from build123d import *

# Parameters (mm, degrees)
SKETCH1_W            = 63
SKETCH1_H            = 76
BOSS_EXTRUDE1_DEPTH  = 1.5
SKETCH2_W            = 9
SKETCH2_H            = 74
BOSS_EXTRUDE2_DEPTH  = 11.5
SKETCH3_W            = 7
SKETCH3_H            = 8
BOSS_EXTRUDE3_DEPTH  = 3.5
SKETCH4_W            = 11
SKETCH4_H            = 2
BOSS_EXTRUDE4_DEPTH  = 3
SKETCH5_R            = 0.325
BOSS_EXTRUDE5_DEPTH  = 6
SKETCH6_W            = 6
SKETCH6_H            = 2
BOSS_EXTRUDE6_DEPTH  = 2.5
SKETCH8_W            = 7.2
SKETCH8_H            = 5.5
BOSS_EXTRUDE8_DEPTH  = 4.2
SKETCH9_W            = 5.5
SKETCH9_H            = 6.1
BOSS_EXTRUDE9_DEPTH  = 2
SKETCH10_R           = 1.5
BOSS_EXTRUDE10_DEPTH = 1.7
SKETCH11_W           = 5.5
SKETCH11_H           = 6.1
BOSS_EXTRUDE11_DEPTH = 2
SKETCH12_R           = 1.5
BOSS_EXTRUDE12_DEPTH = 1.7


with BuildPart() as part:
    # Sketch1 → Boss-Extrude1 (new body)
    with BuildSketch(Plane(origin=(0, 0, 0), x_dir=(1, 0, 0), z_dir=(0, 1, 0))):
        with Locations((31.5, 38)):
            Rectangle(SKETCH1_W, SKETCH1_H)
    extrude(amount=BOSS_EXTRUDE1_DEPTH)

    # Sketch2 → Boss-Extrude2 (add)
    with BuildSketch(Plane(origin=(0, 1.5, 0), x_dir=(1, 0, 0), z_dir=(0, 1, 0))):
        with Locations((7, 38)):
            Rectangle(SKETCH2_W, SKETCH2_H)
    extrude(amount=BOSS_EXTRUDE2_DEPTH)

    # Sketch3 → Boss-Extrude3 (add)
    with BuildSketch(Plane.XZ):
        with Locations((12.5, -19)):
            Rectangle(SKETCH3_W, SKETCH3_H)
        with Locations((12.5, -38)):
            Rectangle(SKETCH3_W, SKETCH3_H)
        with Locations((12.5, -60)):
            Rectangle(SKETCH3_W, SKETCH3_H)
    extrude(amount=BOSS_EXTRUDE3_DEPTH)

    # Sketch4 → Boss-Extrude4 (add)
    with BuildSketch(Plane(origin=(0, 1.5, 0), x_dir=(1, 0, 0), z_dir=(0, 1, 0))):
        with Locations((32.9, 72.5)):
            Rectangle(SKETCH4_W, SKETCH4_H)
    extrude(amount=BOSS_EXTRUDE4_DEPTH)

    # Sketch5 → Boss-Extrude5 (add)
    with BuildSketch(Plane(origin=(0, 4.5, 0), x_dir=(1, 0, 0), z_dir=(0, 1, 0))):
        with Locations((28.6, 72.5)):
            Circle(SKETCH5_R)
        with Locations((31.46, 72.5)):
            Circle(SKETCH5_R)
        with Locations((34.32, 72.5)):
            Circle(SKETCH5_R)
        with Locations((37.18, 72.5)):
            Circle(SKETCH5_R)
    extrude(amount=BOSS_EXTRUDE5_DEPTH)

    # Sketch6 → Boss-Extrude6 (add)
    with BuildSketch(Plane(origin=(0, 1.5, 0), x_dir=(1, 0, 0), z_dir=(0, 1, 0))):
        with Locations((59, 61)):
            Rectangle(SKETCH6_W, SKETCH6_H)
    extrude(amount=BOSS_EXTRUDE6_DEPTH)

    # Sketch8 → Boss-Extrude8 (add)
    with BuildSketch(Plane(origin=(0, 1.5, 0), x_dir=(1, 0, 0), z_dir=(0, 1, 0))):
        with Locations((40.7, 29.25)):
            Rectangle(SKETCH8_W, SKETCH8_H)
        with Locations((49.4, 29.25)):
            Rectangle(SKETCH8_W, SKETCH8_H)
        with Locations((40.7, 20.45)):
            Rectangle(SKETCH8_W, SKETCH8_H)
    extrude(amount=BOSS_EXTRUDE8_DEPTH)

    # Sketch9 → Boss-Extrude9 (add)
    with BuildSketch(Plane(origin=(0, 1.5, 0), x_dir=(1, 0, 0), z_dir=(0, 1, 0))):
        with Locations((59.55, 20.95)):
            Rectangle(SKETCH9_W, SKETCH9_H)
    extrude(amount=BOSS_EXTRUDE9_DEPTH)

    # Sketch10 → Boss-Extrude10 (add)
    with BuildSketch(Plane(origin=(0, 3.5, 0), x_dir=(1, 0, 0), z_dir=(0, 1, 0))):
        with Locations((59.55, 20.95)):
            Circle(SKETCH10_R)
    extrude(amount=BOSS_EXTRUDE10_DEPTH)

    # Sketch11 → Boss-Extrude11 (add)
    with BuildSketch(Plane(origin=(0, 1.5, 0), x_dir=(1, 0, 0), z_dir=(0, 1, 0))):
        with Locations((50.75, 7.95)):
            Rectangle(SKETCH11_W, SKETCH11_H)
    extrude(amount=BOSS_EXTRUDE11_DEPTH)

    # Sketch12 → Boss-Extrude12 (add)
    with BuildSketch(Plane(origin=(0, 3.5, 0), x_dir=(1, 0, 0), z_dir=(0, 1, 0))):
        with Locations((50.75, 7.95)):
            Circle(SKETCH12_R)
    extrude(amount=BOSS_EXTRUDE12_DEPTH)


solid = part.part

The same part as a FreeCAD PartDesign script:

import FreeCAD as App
import Part
import Sketcher
from FreeCAD import Vector
Q = App.Units.Quantity

doc = App.newDocument("Part")
params = doc.addObject("Spreadsheet::Sheet", "Params")
for row, (alias, value) in enumerate([
    ("sketch1_width", "63 mm"),
    ("sketch1_height", "76 mm"),
    ("pad1_length", "1.5 mm"),
    ("sketch2_width", "9 mm"),
    ("sketch2_height", "74 mm"),
    ("pad2_length", "11.5 mm"),
    ("sketch3_width", "7 mm"),
    ("sketch3_height", "8 mm"),
    ("pad3_length", "3.5 mm"),
    ("sketch4_width", "11 mm"),
    ("sketch4_height", "2 mm"),
    ("pad4_length", "3 mm"),
    ("sketch5_diameter", "0.65 mm"),
    ("pad5_length", "6 mm"),
    ("sketch6_width", "6 mm"),
    ("sketch6_height", "2 mm"),
    ("pad6_length", "2.5 mm"),
    ("sketch7_width", "7.2 mm"),
    ("sketch7_height", "5.5 mm"),
    ("pad7_length", "4.2 mm"),
    ("sketch8_width", "5.5 mm"),
    ("sketch8_height", "6.1 mm"),
    ("pad8_length", "2 mm"),
    ("sketch9_diameter", "3 mm"),
    ("pad9_length", "1.7 mm"),
    ("sketch10_width", "5.5 mm"),
    ("sketch10_height", "6.1 mm"),
    ("pad10_length", "2 mm"),
    ("sketch11_diameter", "3 mm"),
    ("pad11_length", "1.7 mm"),
], start=1):
    params.set(f"A{row}", alias)
    params.set(f"B{row}", "=" + value)
    params.setAlias(f"B{row}", alias)

body = doc.addObject("PartDesign::Body", "Body")

sketch1 = body.newObject("Sketcher::SketchObject", "Sketch")
sketch1.AttachmentSupport = (doc.getObject("XZ_Plane"), [""])
sketch1.MapMode = "FlatFace"
sketch1.addGeometry(Part.LineSegment(Vector(0, -76, 0), Vector(0, 0, 0)), False)
sketch1.addGeometry(Part.LineSegment(Vector(0, 0, 0), Vector(63, 0, 0)), False)
sketch1.addGeometry(Part.LineSegment(Vector(63, 0, 0), Vector(63, -76, 0)), False)
sketch1.addGeometry(Part.LineSegment(Vector(63, -76, 0), Vector(0, -76, 0)), False)
sketch1.addConstraint(Sketcher.Constraint("Coincident", 0, 2, 1, 1))
sketch1.addConstraint(Sketcher.Constraint("Coincident", 1, 2, 2, 1))
sketch1.addConstraint(Sketcher.Constraint("Coincident", 2, 2, 3, 1))
sketch1.addConstraint(Sketcher.Constraint("Coincident", 3, 2, 0, 1))
sketch1.addConstraint(Sketcher.Constraint("Vertical", 0))
sketch1.addConstraint(Sketcher.Constraint("Horizontal", 1))
sketch1.addConstraint(Sketcher.Constraint("Vertical", 2))
sketch1.addConstraint(Sketcher.Constraint("Horizontal", 3))
sketch1.addConstraint(Sketcher.Constraint("Coincident", 0, 2, -1, 1))
sketch1.addConstraint(Sketcher.Constraint("DistanceX", 1, 1, 1, 2, Q("63 mm")))
sketch1.addConstraint(Sketcher.Constraint("DistanceY", 0, 1, 0, 2, Q("76 mm")))
sketch1.setExpression("Constraints[9]", "Params.sketch1_width")
sketch1.setExpression("Constraints[10]", "Params.sketch1_height")
pad1 = body.newObject("PartDesign::Pad", "Pad")
pad1.Profile = sketch1
pad1.setExpression("Length", "Params.pad1_length")
pad1.Reversed = True

sketch2 = body.newObject("Sketcher::SketchObject", "Sketch001")
sketch2.AttachmentSupport = (doc.getObject("XZ_Plane"), [""])
sketch2.MapMode = "FlatFace"
sketch2.AttachmentOffset = App.Placement(Vector(0, 0, -1.5), App.Rotation())
sketch2.addGeometry(Part.LineSegment(Vector(2, -75, 0), Vector(2, -1, 0)), False)
sketch2.addGeometry(Part.LineSegment(Vector(2, -1, 0), Vector(12, -1, 0)), False)
sketch2.addGeometry(Part.LineSegment(Vector(12, -1, 0), Vector(12, -75, 0)), False)
sketch2.addGeometry(Part.LineSegment(Vector(12, -75, 0), Vector(2, -75, 0)), False)
sketch2.addConstraint(Sketcher.Constraint("Coincident", 0, 2, 1, 1))
sketch2.addConstraint(Sketcher.Constraint("Coincident", 1, 2, 2, 1))
sketch2.addConstraint(Sketcher.Constraint("Coincident", 2, 2, 3, 1))
sketch2.addConstraint(Sketcher.Constraint("Coincident", 3, 2, 0, 1))
sketch2.addConstraint(Sketcher.Constraint("Vertical", 0))
sketch2.addConstraint(Sketcher.Constraint("Horizontal", 1))
sketch2.addConstraint(Sketcher.Constraint("Vertical", 2))
sketch2.addConstraint(Sketcher.Constraint("Horizontal", 3))
sketch2.addConstraint(Sketcher.Constraint("DistanceX", 1, 1, 1, 2, Q("9 mm")))
sketch2.addConstraint(Sketcher.Constraint("DistanceY", 0, 1, 0, 2, Q("74 mm")))
sketch2.addConstraint(Sketcher.Constraint("DistanceY", 0, 2, -1, 1, Q("1 mm")))
sketch2.addConstraint(Sketcher.Constraint("DistanceX", -1, 1, 0, 2, Q("2.5 mm")))
sketch2.setExpression("Constraints[8]", "Params.sketch2_width")
sketch2.setExpression("Constraints[9]", "Params.sketch2_height")
pad2 = body.newObject("PartDesign::Pad", "Pad001")
pad2.Profile = sketch2
pad2.setExpression("Length", "Params.pad2_length")
pad2.Reversed = True

sketch3 = body.newObject("Sketcher::SketchObject", "Sketch002")
sketch3.AttachmentSupport = (doc.getObject("XZ_Plane"), [""])
sketch3.MapMode = "FlatFace"
sketch3.addGeometry(Part.LineSegment(Vector(9, -15, 0), Vector(9, -23, 0)), False)
sketch3.addGeometry(Part.LineSegment(Vector(9, -23, 0), Vector(16, -23, 0)), False)
sketch3.addGeometry(Part.LineSegment(Vector(16, -23, 0), Vector(16, -15, 0)), False)
sketch3.addGeometry(Part.LineSegment(Vector(16, -15, 0), Vector(9, -15, 0)), False)
sketch3.addGeometry(Part.LineSegment(Vector(9, -34, 0), Vector(9, -42, 0)), False)
sketch3.addGeometry(Part.LineSegment(Vector(9, -42, 0), Vector(16, -42, 0)), False)
sketch3.addGeometry(Part.LineSegment(Vector(16, -42, 0), Vector(16, -34, 0)), False)
sketch3.addGeometry(Part.LineSegment(Vector(16, -34, 0), Vector(9, -34, 0)), False)
sketch3.addGeometry(Part.LineSegment(Vector(9, -56, 0), Vector(9, -64, 0)), False)
sketch3.addGeometry(Part.LineSegment(Vector(9, -64, 0), Vector(16, -64, 0)), False)
sketch3.addGeometry(Part.LineSegment(Vector(16, -64, 0), Vector(16, -56, 0)), False)
sketch3.addGeometry(Part.LineSegment(Vector(16, -56, 0), Vector(9, -56, 0)), False)
sketch3.addConstraint(Sketcher.Constraint("Coincident", 0, 2, 1, 1))
sketch3.addConstraint(Sketcher.Constraint("Coincident", 1, 2, 2, 1))
sketch3.addConstraint(Sketcher.Constraint("Coincident", 2, 2, 3, 1))
sketch3.addConstraint(Sketcher.Constraint("Coincident", 3, 2, 0, 1))
sketch3.addConstraint(Sketcher.Constraint("Coincident", 4, 2, 5, 1))
sketch3.addConstraint(Sketcher.Constraint("Coincident", 5, 2, 6, 1))
sketch3.addConstraint(Sketcher.Constraint("Coincident", 6, 2, 7, 1))
sketch3.addConstraint(Sketcher.Constraint("Coincident", 7, 2, 4, 1))
sketch3.addConstraint(Sketcher.Constraint("Coincident", 8, 2, 9, 1))
sketch3.addConstraint(Sketcher.Constraint("Coincident", 9, 2, 10, 1))
sketch3.addConstraint(Sketcher.Constraint("Coincident", 10, 2, 11, 1))
sketch3.addConstraint(Sketcher.Constraint("Coincident", 11, 2, 8, 1))
sketch3.addConstraint(Sketcher.Constraint("Vertical", 0))
sketch3.addConstraint(Sketcher.Constraint("Horizontal", 1))
sketch3.addConstraint(Sketcher.Constraint("Vertical", 2))
sketch3.addConstraint(Sketcher.Constraint("Horizontal", 3))
sketch3.addConstraint(Sketcher.Constraint("Vertical", 4))
sketch3.addConstraint(Sketcher.Constraint("Horizontal", 5))
sketch3.addConstraint(Sketcher.Constraint("Vertical", 6))
sketch3.addConstraint(Sketcher.Constraint("Horizontal", 7))
sketch3.addConstraint(Sketcher.Constraint("Vertical", 8))
sketch3.addConstraint(Sketcher.Constraint("Horizontal", 9))
sketch3.addConstraint(Sketcher.Constraint("Vertical", 10))
sketch3.addConstraint(Sketcher.Constraint("Horizontal", 11))
sketch3.addConstraint(Sketcher.Constraint("Vertical", 3, 2, 4, 2))
sketch3.addConstraint(Sketcher.Constraint("Vertical", 2, 2, 5, 2))
sketch3.addConstraint(Sketcher.Constraint("Vertical", 7, 2, 8, 2))
sketch3.addConstraint(Sketcher.Constraint("Vertical", 6, 2, 9, 2))
sketch3.addConstraint(Sketcher.Constraint("Equal", 2, 4))
sketch3.addConstraint(Sketcher.Constraint("Equal", 6, 8))
sketch3.addConstraint(Sketcher.Constraint("DistanceX", 1, 1, 1, 2, Q("7 mm")))
sketch3.addConstraint(Sketcher.Constraint("DistanceY", 0, 2, 0, 1, Q("8 mm")))
sketch3.addConstraint(Sketcher.Constraint("DistanceX", -1, 1, 0, 2, Q("9 mm")))
sketch3.addConstraint(Sketcher.Constraint("DistanceY", 0, 2, -1, 1, Q("23 mm")))
sketch3.addConstraint(Sketcher.Constraint("DistanceY", 4, 2, -1, 1, Q("42 mm")))
sketch3.addConstraint(Sketcher.Constraint("DistanceY", 8, 2, -1, 1, Q("64 mm")))
sketch3.setExpression("Constraints[30]", "Params.sketch3_width")
sketch3.setExpression("Constraints[31]", "Params.sketch3_height")
pad3 = body.newObject("PartDesign::Pad", "Pad002")
pad3.Profile = sketch3
pad3.setExpression("Length", "Params.pad3_length")

sketch4 = body.newObject("Sketcher::SketchObject", "Sketch003")
sketch4.AttachmentSupport = (doc.getObject("XZ_Plane"), [""])
sketch4.MapMode = "FlatFace"
sketch4.AttachmentOffset = App.Placement(Vector(0, 0, -1.5), App.Rotation())
sketch4.addGeometry(Part.LineSegment(Vector(27.4, -73.5, 0), Vector(27.4, -71.5, 0)), False)
sketch4.addGeometry(Part.LineSegment(Vector(27.4, -71.5, 0), Vector(38.4, -71.5, 0)), False)
sketch4.addGeometry(Part.LineSegment(Vector(38.4, -71.5, 0), Vector(38.4, -73.5, 0)), False)
sketch4.addGeometry(Part.LineSegment(Vector(38.4, -73.5, 0), Vector(27.4, -73.5, 0)), False)
sketch4.addConstraint(Sketcher.Constraint("Coincident", 0, 2, 1, 1))
sketch4.addConstraint(Sketcher.Constraint("Coincident", 1, 2, 2, 1))
sketch4.addConstraint(Sketcher.Constraint("Coincident", 2, 2, 3, 1))
sketch4.addConstraint(Sketcher.Constraint("Coincident", 3, 2, 0, 1))
sketch4.addConstraint(Sketcher.Constraint("Vertical", 0))
sketch4.addConstraint(Sketcher.Constraint("Horizontal", 1))
sketch4.addConstraint(Sketcher.Constraint("Vertical", 2))
sketch4.addConstraint(Sketcher.Constraint("Horizontal", 3))
sketch4.addConstraint(Sketcher.Constraint("DistanceX", 1, 1, 1, 2, Q("11 mm")))
sketch4.addConstraint(Sketcher.Constraint("DistanceY", 0, 1, 0, 2, Q("2 mm")))
sketch4.addConstraint(Sketcher.Constraint("DistanceX", -1, 1, 0, 2, Q("27.4 mm")))
sketch4.addConstraint(Sketcher.Constraint("DistanceY", 0, 2, -1, 1, Q("71.5 mm")))
sketch4.setExpression("Constraints[8]", "Params.sketch4_width")
sketch4.setExpression("Constraints[9]", "Params.sketch4_height")
pad4 = body.newObject("PartDesign::Pad", "Pad003")
pad4.Profile = sketch4
pad4.setExpression("Length", "Params.pad4_length")
pad4.Reversed = True

sketch5 = body.newObject("Sketcher::SketchObject", "Sketch004")
sketch5.AttachmentSupport = (doc.getObject("XZ_Plane"), [""])
sketch5.MapMode = "FlatFace"
sketch5.AttachmentOffset = App.Placement(Vector(0, 0, -4.5), App.Rotation())
sketch5.addGeometry(Part.Circle(Vector(28.6, -72.5, 0), Vector(0, 0, 1), 0.33), False)
sketch5.addGeometry(Part.Circle(Vector(31.46, -72.5, 0), Vector(0, 0, 1), 0.33), False)
sketch5.addGeometry(Part.Circle(Vector(34.32, -72.5, 0), Vector(0, 0, 1), 0.33), False)
sketch5.addGeometry(Part.Circle(Vector(37.18, -72.5, 0), Vector(0, 0, 1), 0.33), False)
sketch5.addConstraint(Sketcher.Constraint("Equal", 0, 1))
sketch5.addConstraint(Sketcher.Constraint("Equal", 1, 2))
sketch5.addConstraint(Sketcher.Constraint("Equal", 2, 3))
sketch5.addConstraint(Sketcher.Constraint("Horizontal", 0, 3, 1, 3))
sketch5.addConstraint(Sketcher.Constraint("Horizontal", 1, 3, 2, 3))
sketch5.addConstraint(Sketcher.Constraint("Horizontal", 2, 3, 3, 3))
sketch5.addConstraint(Sketcher.Constraint("Diameter", 0, Q("0.65 mm")))
sketch5.addConstraint(Sketcher.Constraint("DistanceX", -1, 1, 0, 3, Q("28.6 mm")))
sketch5.addConstraint(Sketcher.Constraint("DistanceY", 0, 3, -1, 1, Q("72.5 mm")))
sketch5.addConstraint(Sketcher.Constraint("DistanceX", -1, 1, 1, 3, Q("31.46 mm")))
sketch5.addConstraint(Sketcher.Constraint("DistanceX", -1, 1, 2, 3, Q("34.32 mm")))
sketch5.addConstraint(Sketcher.Constraint("DistanceX", -1, 1, 3, 3, Q("37.18 mm")))
sketch5.setExpression("Constraints[6]", "Params.sketch5_diameter")
pad5 = body.newObject("PartDesign::Pad", "Pad004")
pad5.Profile = sketch5
pad5.setExpression("Length", "Params.pad5_length")
pad5.Reversed = True

sketch6 = body.newObject("Sketcher::SketchObject", "Sketch005")
sketch6.AttachmentSupport = (doc.getObject("XZ_Plane"), [""])
sketch6.MapMode = "FlatFace"
sketch6.AttachmentOffset = App.Placement(Vector(0, 0, -1.5), App.Rotation())
sketch6.addGeometry(Part.LineSegment(Vector(56, -62, 0), Vector(56, -60, 0)), False)
sketch6.addGeometry(Part.LineSegment(Vector(56, -60, 0), Vector(62, -60, 0)), False)
sketch6.addGeometry(Part.LineSegment(Vector(62, -60, 0), Vector(62, -62, 0)), False)
sketch6.addGeometry(Part.LineSegment(Vector(62, -62, 0), Vector(56, -62, 0)), False)
sketch6.addConstraint(Sketcher.Constraint("Coincident", 0, 2, 1, 1))
sketch6.addConstraint(Sketcher.Constraint("Coincident", 1, 2, 2, 1))
sketch6.addConstraint(Sketcher.Constraint("Coincident", 2, 2, 3, 1))
sketch6.addConstraint(Sketcher.Constraint("Coincident", 3, 2, 0, 1))
sketch6.addConstraint(Sketcher.Constraint("Vertical", 0))
sketch6.addConstraint(Sketcher.Constraint("Horizontal", 1))
sketch6.addConstraint(Sketcher.Constraint("Vertical", 2))
sketch6.addConstraint(Sketcher.Constraint("Horizontal", 3))
sketch6.addConstraint(Sketcher.Constraint("DistanceX", 1, 1, 1, 2, Q("6 mm")))
sketch6.addConstraint(Sketcher.Constraint("DistanceY", 0, 1, 0, 2, Q("2 mm")))
sketch6.addConstraint(Sketcher.Constraint("DistanceX", -1, 1, 0, 2, Q("56 mm")))
sketch6.addConstraint(Sketcher.Constraint("DistanceY", 0, 2, -1, 1, Q("60 mm")))
sketch6.setExpression("Constraints[8]", "Params.sketch6_width")
sketch6.setExpression("Constraints[9]", "Params.sketch6_height")
pad6 = body.newObject("PartDesign::Pad", "Pad005")
pad6.Profile = sketch6
pad6.setExpression("Length", "Params.pad6_length")
pad6.Reversed = True

sketch7 = body.newObject("Sketcher::SketchObject", "Sketch006")
sketch7.AttachmentSupport = (doc.getObject("XZ_Plane"), [""])
sketch7.MapMode = "FlatFace"
sketch7.AttachmentOffset = App.Placement(Vector(0, 0, -1.5), App.Rotation())
sketch7.addGeometry(Part.LineSegment(Vector(37, -32, 0), Vector(37, -26, 0)), False)
sketch7.addGeometry(Part.LineSegment(Vector(37, -26, 0), Vector(44, -26, 0)), False)
sketch7.addGeometry(Part.LineSegment(Vector(44, -26, 0), Vector(44, -32, 0)), False)
sketch7.addGeometry(Part.LineSegment(Vector(44, -32, 0), Vector(37, -32, 0)), False)
sketch7.addGeometry(Part.LineSegment(Vector(46, -32, 0), Vector(46, -26, 0)), False)
sketch7.addGeometry(Part.LineSegment(Vector(46, -26, 0), Vector(53, -26, 0)), False)
sketch7.addGeometry(Part.LineSegment(Vector(53, -26, 0), Vector(53, -32, 0)), False)
sketch7.addGeometry(Part.LineSegment(Vector(53, -32, 0), Vector(46, -32, 0)), False)
sketch7.addGeometry(Part.LineSegment(Vector(37, -23, 0), Vector(37, -18, 0)), False)
sketch7.addGeometry(Part.LineSegment(Vector(37, -18, 0), Vector(44, -18, 0)), False)
sketch7.addGeometry(Part.LineSegment(Vector(44, -18, 0), Vector(44, -23, 0)), False)
sketch7.addGeometry(Part.LineSegment(Vector(44, -23, 0), Vector(37, -23, 0)), False)
sketch7.addConstraint(Sketcher.Constraint("Coincident", 0, 2, 1, 1))
sketch7.addConstraint(Sketcher.Constraint("Coincident", 1, 2, 2, 1))
sketch7.addConstraint(Sketcher.Constraint("Coincident", 2, 2, 3, 1))
sketch7.addConstraint(Sketcher.Constraint("Coincident", 3, 2, 0, 1))
sketch7.addConstraint(Sketcher.Constraint("Coincident", 4, 2, 5, 1))
sketch7.addConstraint(Sketcher.Constraint("Coincident", 5, 2, 6, 1))
sketch7.addConstraint(Sketcher.Constraint("Coincident", 6, 2, 7, 1))
sketch7.addConstraint(Sketcher.Constraint("Coincident", 7, 2, 4, 1))
sketch7.addConstraint(Sketcher.Constraint("Coincident", 8, 2, 9, 1))
sketch7.addConstraint(Sketcher.Constraint("Coincident", 9, 2, 10, 1))
sketch7.addConstraint(Sketcher.Constraint("Coincident", 10, 2, 11, 1))
sketch7.addConstraint(Sketcher.Constraint("Coincident", 11, 2, 8, 1))
sketch7.addConstraint(Sketcher.Constraint("Vertical", 0))
sketch7.addConstraint(Sketcher.Constraint("Horizontal", 1))
sketch7.addConstraint(Sketcher.Constraint("Vertical", 2))
sketch7.addConstraint(Sketcher.Constraint("Horizontal", 3))
sketch7.addConstraint(Sketcher.Constraint("Vertical", 4))
sketch7.addConstraint(Sketcher.Constraint("Horizontal", 5))
sketch7.addConstraint(Sketcher.Constraint("Vertical", 6))
sketch7.addConstraint(Sketcher.Constraint("Horizontal", 7))
sketch7.addConstraint(Sketcher.Constraint("Vertical", 8))
sketch7.addConstraint(Sketcher.Constraint("Horizontal", 9))
sketch7.addConstraint(Sketcher.Constraint("Vertical", 10))
sketch7.addConstraint(Sketcher.Constraint("Horizontal", 11))
sketch7.addConstraint(Sketcher.Constraint("Horizontal", 1, 2, 4, 2))
sketch7.addConstraint(Sketcher.Constraint("Horizontal", 3, 2, 6, 2))
sketch7.addConstraint(Sketcher.Constraint("Vertical", 3, 2, 8, 2))
sketch7.addConstraint(Sketcher.Constraint("Vertical", 2, 2, 9, 2))
sketch7.addConstraint(Sketcher.Constraint("Equal", 3, 5))
sketch7.addConstraint(Sketcher.Constraint("Equal", 6, 8))
sketch7.addConstraint(Sketcher.Constraint("DistanceX", 1, 1, 1, 2, Q("7.2 mm")))
sketch7.addConstraint(Sketcher.Constraint("DistanceY", 0, 1, 0, 2, Q("5.5 mm")))
sketch7.addConstraint(Sketcher.Constraint("DistanceY", 2, 2, -1, 1, Q("32 mm")))
sketch7.addConstraint(Sketcher.Constraint("DistanceX", -1, 1, 5, 2, Q("53 mm")))
sketch7.addConstraint(Sketcher.Constraint("DistanceX", -1, 1, 0, 2, Q("37.1 mm")))
sketch7.addConstraint(Sketcher.Constraint("DistanceY", 8, 2, -1, 1, Q("17.7 mm")))
sketch7.setExpression("Constraints[30]", "Params.sketch7_width")
sketch7.setExpression("Constraints[31]", "Params.sketch7_height")
pad7 = body.newObject("PartDesign::Pad", "Pad006")
pad7.Profile = sketch7
pad7.setExpression("Length", "Params.pad7_length")
pad7.Reversed = True

sketch8 = body.newObject("Sketcher::SketchObject", "Sketch007")
sketch8.AttachmentSupport = (doc.getObject("XZ_Plane"), [""])
sketch8.MapMode = "FlatFace"
sketch8.AttachmentOffset = App.Placement(Vector(0, 0, -1.5), App.Rotation())
sketch8.addGeometry(Part.LineSegment(Vector(57, -24, 0), Vector(57, -18, 0)), False)
sketch8.addGeometry(Part.LineSegment(Vector(57, -18, 0), Vector(62, -18, 0)), False)
sketch8.addGeometry(Part.LineSegment(Vector(62, -18, 0), Vector(62, -24, 0)), False)
sketch8.addGeometry(Part.LineSegment(Vector(62, -24, 0), Vector(57, -24, 0)), False)
sketch8.addConstraint(Sketcher.Constraint("Coincident", 0, 2, 1, 1))
sketch8.addConstraint(Sketcher.Constraint("Coincident", 1, 2, 2, 1))
sketch8.addConstraint(Sketcher.Constraint("Coincident", 2, 2, 3, 1))
sketch8.addConstraint(Sketcher.Constraint("Coincident", 3, 2, 0, 1))
sketch8.addConstraint(Sketcher.Constraint("Vertical", 0))
sketch8.addConstraint(Sketcher.Constraint("Horizontal", 1))
sketch8.addConstraint(Sketcher.Constraint("Vertical", 2))
sketch8.addConstraint(Sketcher.Constraint("Horizontal", 3))
sketch8.addConstraint(Sketcher.Constraint("DistanceX", 1, 1, 1, 2, Q("5.5 mm")))
sketch8.addConstraint(Sketcher.Constraint("DistanceY", 0, 1, 0, 2, Q("6.1 mm")))
sketch8.addConstraint(Sketcher.Constraint("DistanceY", 2, 2, -1, 1, Q("24 mm")))
sketch8.addConstraint(Sketcher.Constraint("DistanceX", -1, 1, 0, 2, Q("56.8 mm")))
sketch8.setExpression("Constraints[8]", "Params.sketch8_width")
sketch8.setExpression("Constraints[9]", "Params.sketch8_height")
pad8 = body.newObject("PartDesign::Pad", "Pad007")
pad8.Profile = sketch8
pad8.setExpression("Length", "Params.pad8_length")
pad8.Reversed = True

sketch9 = body.newObject("Sketcher::SketchObject", "Sketch008")
sketch9.AttachmentSupport = (doc.getObject("XZ_Plane"), [""])
sketch9.MapMode = "FlatFace"
sketch9.AttachmentOffset = App.Placement(Vector(0, 0, -3.5), App.Rotation())
sketch9.addGeometry(Part.Circle(Vector(59.5, -20.9, 0), Vector(0, 0, 1), 1.5), False)
sketch9.addConstraint(Sketcher.Constraint("Diameter", 0, Q("3 mm")))
sketch9.addConstraint(Sketcher.Constraint("DistanceX", -1, 1, 0, 3, Q("59.55 mm")))
sketch9.addConstraint(Sketcher.Constraint("DistanceY", 0, 3, -1, 1, Q("20.95 mm")))
sketch9.setExpression("Constraints[0]", "Params.sketch9_diameter")
pad9 = body.newObject("PartDesign::Pad", "Pad008")
pad9.Profile = sketch9
pad9.setExpression("Length", "Params.pad9_length")
pad9.Reversed = True

sketch10 = body.newObject("Sketcher::SketchObject", "Sketch009")
sketch10.AttachmentSupport = (doc.getObject("XZ_Plane"), [""])
sketch10.MapMode = "FlatFace"
sketch10.AttachmentOffset = App.Placement(Vector(0, 0, -1.5), App.Rotation())
sketch10.addGeometry(Part.LineSegment(Vector(48, -11, 0), Vector(48, -5, 0)), False)
sketch10.addGeometry(Part.LineSegment(Vector(48, -5, 0), Vector(54, -5, 0)), False)
sketch10.addGeometry(Part.LineSegment(Vector(54, -5, 0), Vector(54, -11, 0)), False)
sketch10.addGeometry(Part.LineSegment(Vector(54, -11, 0), Vector(48, -11, 0)), False)
sketch10.addConstraint(Sketcher.Constraint("Coincident", 0, 2, 1, 1))
sketch10.addConstraint(Sketcher.Constraint("Coincident", 1, 2, 2, 1))
sketch10.addConstraint(Sketcher.Constraint("Coincident", 2, 2, 3, 1))
sketch10.addConstraint(Sketcher.Constraint("Coincident", 3, 2, 0, 1))
sketch10.addConstraint(Sketcher.Constraint("Vertical", 0))
sketch10.addConstraint(Sketcher.Constraint("Horizontal", 1))
sketch10.addConstraint(Sketcher.Constraint("Vertical", 2))
sketch10.addConstraint(Sketcher.Constraint("Horizontal", 3))
sketch10.addConstraint(Sketcher.Constraint("DistanceX", 1, 1, 1, 2, Q("5.5 mm")))
sketch10.addConstraint(Sketcher.Constraint("DistanceY", 0, 1, 0, 2, Q("6.1 mm")))
sketch10.addConstraint(Sketcher.Constraint("DistanceX", -1, 1, 0, 2, Q("48 mm")))
sketch10.addConstraint(Sketcher.Constraint("DistanceY", 2, 2, -1, 1, Q("11 mm")))
sketch10.setExpression("Constraints[8]", "Params.sketch10_width")
sketch10.setExpression("Constraints[9]", "Params.sketch10_height")
pad10 = body.newObject("PartDesign::Pad", "Pad009")
pad10.Profile = sketch10
pad10.setExpression("Length", "Params.pad10_length")
pad10.Reversed = True

sketch11 = body.newObject("Sketcher::SketchObject", "Sketch010")
sketch11.AttachmentSupport = (doc.getObject("XZ_Plane"), [""])
sketch11.MapMode = "FlatFace"
sketch11.AttachmentOffset = App.Placement(Vector(0, 0, -3.5), App.Rotation())
sketch11.addGeometry(Part.Circle(Vector(50.8, -8, 0), Vector(0, 0, 1), 1.5), False)
sketch11.addConstraint(Sketcher.Constraint("Diameter", 0, Q("3 mm")))
sketch11.addConstraint(Sketcher.Constraint("DistanceX", -1, 1, 0, 3, Q("50.75 mm")))
sketch11.addConstraint(Sketcher.Constraint("DistanceY", 0, 3, -1, 1, Q("7.95 mm")))
sketch11.setExpression("Constraints[0]", "Params.sketch11_diameter")
pad11 = body.newObject("PartDesign::Pad", "Pad010")
pad11.Profile = sketch11
pad11.setExpression("Length", "Params.pad11_length")
pad11.Reversed = True

doc.recompute()
